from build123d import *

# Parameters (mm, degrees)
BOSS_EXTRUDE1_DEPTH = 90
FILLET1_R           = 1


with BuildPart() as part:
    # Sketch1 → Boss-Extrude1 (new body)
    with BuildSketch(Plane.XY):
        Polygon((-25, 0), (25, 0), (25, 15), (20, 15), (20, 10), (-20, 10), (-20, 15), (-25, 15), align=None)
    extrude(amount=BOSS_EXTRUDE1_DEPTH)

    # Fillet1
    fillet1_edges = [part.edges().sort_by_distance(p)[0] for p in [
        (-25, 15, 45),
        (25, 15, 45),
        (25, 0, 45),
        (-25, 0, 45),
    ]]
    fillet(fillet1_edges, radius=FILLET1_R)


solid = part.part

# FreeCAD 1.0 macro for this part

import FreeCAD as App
import Part
import Sketcher
from FreeCAD import Vector
Q = App.Units.Quantity


def edges_at(feature, points):
    """Names of the edges that pass closest to the given points."""
    edges = feature.Shape.Edges
    near = lambda p: min(range(len(edges)), key=lambda i: edges[i].distToShape(Part.Vertex(*p))[0])
    return sorted({f"Edge{near(p) + 1}" for p in points})


def add_polygon(sketch, points):
    """Adds a closed chain of lines whose ends are joined by coincident constraints."""
    first, n = sketch.GeometryCount, len(points)
    for a, b in zip(points, points[1:] + points[:1]):
        sketch.addGeometry(Part.LineSegment(App.Vector(*a, 0), App.Vector(*b, 0)), False)
    for i in range(n):
        sketch.addConstraint(Sketcher.Constraint("Coincident", first + i, 2, first + (i + 1) % n, 1))

doc = App.newDocument("Part")
body = doc.addObject("PartDesign::Body", "Body")

sketch1 = body.newObject("Sketcher::SketchObject", "Sketch")
sketch1.AttachmentSupport = (doc.getObject("XY_Plane"), [""])
sketch1.MapMode = "FlatFace"
add_polygon(sketch1, [(-25, 0), (25, 0), (25, 15), (20, 15), (20, 10), (-20, 10), (-20, 15), (-25, 15)])
sketch1.addConstraint([
    Sketcher.Constraint("Horizontal", 0),
    Sketcher.Constraint("Vertical", 1),
    Sketcher.Constraint("Horizontal", 2),
    Sketcher.Constraint("Vertical", 3),
    Sketcher.Constraint("Horizontal", 4),
    Sketcher.Constraint("Vertical", 5),
    Sketcher.Constraint("Horizontal", 6),
    Sketcher.Constraint("Vertical", 7),
    Sketcher.Constraint("Symmetric", 0, 2, 7, 2, -1, 1),
    Sketcher.Constraint("Symmetric", 2, 2, 5, 2, -2),
    Sketcher.Constraint("Equal", 6, 3),
    Sketcher.Constraint("DistanceX", 0, 1, 0, 2, Q("50 mm")),
    Sketcher.Constraint("DistanceX", 2, 2, 2, 1, Q("5 mm")),
    Sketcher.Constraint("DistanceY", 1, 1, 1, 2, Q("15 mm")),
])
pad1 = body.newObject("PartDesign::Pad", "Pad")
pad1.Profile = sketch1
pad1.Length = 90
doc.recompute()

fillet = body.newObject("PartDesign::Fillet", "Fillet")
fillet.Base = (pad1, edges_at(pad1, [
    (-25, 15, 45),
    (25, 15, 45),
    (25, 0, 45),
    (-25, 0, 45),
]))
fillet.Radius = 1

doc.recompute()
